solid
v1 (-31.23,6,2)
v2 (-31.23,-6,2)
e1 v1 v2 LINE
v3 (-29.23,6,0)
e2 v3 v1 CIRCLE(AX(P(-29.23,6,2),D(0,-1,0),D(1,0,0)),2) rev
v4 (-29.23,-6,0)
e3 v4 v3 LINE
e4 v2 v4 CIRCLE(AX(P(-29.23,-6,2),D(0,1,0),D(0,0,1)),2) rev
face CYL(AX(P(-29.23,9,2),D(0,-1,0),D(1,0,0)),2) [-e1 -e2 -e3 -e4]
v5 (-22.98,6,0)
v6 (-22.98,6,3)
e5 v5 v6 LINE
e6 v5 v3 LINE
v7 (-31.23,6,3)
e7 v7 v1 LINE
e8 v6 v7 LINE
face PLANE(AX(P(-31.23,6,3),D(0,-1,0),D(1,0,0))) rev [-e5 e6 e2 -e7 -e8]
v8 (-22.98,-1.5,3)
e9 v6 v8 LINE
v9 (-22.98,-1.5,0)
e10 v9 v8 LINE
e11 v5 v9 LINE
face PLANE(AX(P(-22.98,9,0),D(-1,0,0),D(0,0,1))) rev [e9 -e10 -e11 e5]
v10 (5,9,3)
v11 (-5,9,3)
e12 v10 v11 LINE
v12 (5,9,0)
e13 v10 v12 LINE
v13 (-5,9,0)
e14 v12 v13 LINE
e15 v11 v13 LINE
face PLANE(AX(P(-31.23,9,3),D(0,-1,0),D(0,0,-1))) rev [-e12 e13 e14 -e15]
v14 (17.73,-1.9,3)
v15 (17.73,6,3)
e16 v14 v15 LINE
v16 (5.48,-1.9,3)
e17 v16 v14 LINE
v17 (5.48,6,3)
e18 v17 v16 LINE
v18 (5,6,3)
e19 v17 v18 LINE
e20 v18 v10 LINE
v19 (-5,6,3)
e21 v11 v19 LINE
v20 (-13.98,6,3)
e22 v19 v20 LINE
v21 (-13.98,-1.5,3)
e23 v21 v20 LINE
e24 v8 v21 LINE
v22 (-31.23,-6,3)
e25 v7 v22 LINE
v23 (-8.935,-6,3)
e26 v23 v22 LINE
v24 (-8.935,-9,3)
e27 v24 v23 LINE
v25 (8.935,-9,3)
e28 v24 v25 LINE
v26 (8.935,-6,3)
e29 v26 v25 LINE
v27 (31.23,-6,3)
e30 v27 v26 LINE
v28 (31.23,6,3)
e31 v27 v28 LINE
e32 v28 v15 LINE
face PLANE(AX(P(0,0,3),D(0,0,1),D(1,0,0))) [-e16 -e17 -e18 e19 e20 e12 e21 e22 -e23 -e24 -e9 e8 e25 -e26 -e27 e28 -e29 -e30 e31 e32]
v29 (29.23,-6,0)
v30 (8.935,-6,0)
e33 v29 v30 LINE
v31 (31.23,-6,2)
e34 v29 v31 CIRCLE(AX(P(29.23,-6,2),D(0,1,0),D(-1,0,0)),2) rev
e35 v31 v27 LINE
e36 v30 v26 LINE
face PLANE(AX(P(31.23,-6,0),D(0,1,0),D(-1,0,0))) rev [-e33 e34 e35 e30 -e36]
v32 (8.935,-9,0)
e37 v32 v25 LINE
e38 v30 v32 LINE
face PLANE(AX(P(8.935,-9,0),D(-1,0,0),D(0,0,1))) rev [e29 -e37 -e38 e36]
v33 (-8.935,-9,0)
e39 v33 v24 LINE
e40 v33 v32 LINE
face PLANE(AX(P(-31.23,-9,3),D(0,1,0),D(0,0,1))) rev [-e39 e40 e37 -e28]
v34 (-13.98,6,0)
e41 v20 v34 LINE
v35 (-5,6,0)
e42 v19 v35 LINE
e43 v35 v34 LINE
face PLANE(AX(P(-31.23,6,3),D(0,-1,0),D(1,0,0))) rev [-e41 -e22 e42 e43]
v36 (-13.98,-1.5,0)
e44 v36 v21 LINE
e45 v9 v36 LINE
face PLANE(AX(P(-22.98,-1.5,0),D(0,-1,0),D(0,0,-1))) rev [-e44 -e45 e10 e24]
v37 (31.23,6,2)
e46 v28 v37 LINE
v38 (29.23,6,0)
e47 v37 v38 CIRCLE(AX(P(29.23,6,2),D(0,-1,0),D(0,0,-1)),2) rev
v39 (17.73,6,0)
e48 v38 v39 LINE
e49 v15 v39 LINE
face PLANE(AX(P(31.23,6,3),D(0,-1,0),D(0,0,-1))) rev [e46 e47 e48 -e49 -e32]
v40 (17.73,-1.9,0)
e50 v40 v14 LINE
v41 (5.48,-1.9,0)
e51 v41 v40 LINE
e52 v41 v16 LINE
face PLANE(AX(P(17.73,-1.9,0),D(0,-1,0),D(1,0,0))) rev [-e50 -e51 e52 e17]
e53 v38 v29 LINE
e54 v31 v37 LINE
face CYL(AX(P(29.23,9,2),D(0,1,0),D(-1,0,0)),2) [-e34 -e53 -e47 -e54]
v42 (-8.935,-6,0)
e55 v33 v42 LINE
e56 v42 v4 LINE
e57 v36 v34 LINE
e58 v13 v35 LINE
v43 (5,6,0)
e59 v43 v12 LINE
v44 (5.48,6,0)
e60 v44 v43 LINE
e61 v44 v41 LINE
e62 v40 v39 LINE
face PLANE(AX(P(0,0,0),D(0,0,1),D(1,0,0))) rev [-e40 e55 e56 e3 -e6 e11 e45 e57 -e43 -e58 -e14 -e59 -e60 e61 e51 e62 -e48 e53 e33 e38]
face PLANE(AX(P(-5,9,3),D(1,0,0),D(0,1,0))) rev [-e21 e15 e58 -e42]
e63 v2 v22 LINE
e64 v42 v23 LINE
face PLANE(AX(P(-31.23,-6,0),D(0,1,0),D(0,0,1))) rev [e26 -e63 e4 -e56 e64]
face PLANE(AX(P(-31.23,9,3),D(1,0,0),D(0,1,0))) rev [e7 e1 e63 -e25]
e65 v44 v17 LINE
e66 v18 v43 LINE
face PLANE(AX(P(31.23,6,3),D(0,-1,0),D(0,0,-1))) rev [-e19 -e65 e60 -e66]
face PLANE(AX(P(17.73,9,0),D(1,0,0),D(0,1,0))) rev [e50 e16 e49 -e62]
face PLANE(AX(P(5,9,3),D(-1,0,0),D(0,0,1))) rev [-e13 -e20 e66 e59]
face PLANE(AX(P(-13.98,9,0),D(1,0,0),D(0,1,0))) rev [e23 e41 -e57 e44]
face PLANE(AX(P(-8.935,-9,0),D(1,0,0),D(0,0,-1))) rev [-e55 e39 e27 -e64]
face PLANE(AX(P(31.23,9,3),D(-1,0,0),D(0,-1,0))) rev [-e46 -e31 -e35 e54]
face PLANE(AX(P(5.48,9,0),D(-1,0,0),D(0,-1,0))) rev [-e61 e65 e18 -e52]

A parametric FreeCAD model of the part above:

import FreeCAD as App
import Part
import Sketcher

V = App.Vector
Q = App.Units.Quantity


def edges_at(feature, points):
    """Names of the edges that pass closest to the given points."""
    edges = feature.Shape.Edges
    near = lambda p: min(range(len(edges)), key=lambda i: edges[i].distToShape(Part.Vertex(*p))[0])
    return sorted({f"Edge{near(p) + 1}" for p in points})


def add_polygon(sketch, points):
    """Adds a closed chain of lines whose ends are joined by coincident constraints."""
    first, n = sketch.GeometryCount, len(points)
    for a, b in zip(points, points[1:] + points[:1]):
        sketch.addGeometry(Part.LineSegment(App.Vector(*a, 0), App.Vector(*b, 0)), False)
    for i in range(n):
        sketch.addConstraint(Sketcher.Constraint("Coincident", first + i, 2, first + (i + 1) % n, 1))

doc = App.newDocument("Part")
body = doc.addObject("PartDesign::Body", "Body")

# Sketch on XY plane
sketch1 = body.newObject("Sketcher::SketchObject", "Sketch")
sketch1.AttachmentSupport = (doc.getObject("XY_Plane"), [""])
sketch1.MapMode = "FlatFace"
add_polygon(sketch1, [(-31, 9), (-31, -9), (31, -9), (31, 9)])  # lines 0-3
sketch1.addConstraint([
    Sketcher.Constraint("Vertical", 0),
    Sketcher.Constraint("Horizontal", 1),
    Sketcher.Constraint("Vertical", 2),
    Sketcher.Constraint("Horizontal", 3),
    Sketcher.Constraint("Symmetric", 0, 2, 2, 2, -1, 1),
    Sketcher.Constraint("DistanceY", 0, 2, 0, 1, Q("18 mm")),
    Sketcher.Constraint("DistanceX", 1, 1, 1, 2, Q("62.46 mm")),
])
pad1 = body.newObject("PartDesign::Pad", "Pad")
pad1.Profile = sketch1
pad1.Length = 3

# Sketch on XY plane
sketch2 = body.newObject("Sketcher::SketchObject", "Sketch001")
sketch2.AttachmentSupport = (doc.getObject("XY_Plane"), [""])
sketch2.MapMode = "FlatFace"
sketch2.AttachmentOffset = App.Placement(V(0, 0, 3), App.Rotation())
add_polygon(sketch2, [(8.9, -6), (8.9, -9), (31.2, -9), (31.2, -6)])  # lines 0-3
add_polygon(sketch2, [(-31.2, -6), (-31.2, -9), (-8.9, -9), (-8.9, -6)])  # lines 4-7
sketch2.addConstraint([
    Sketcher.Constraint("Vertical", 0),
    Sketcher.Constraint("Horizontal", 1),
    Sketcher.Constraint("Vertical", 2),
    Sketcher.Constraint("Horizontal", 3),
    Sketcher.Constraint("Vertical", 4),
    Sketcher.Constraint("Horizontal", 5),
    Sketcher.Constraint("Vertical", 6),
    Sketcher.Constraint("Horizontal", 7),
    Sketcher.Constraint("Symmetric", 1, 2, 4, 2, -2),
    Sketcher.Constraint("Symmetric", 3, 2, 6, 2, -2),
    Sketcher.Constraint("DistanceY", 0, 2, 0, 1, Q("3 mm")),
    Sketcher.Constraint("DistanceY", 0, 2, -1, 1, Q("9 mm")),
    Sketcher.Constraint("DistanceX", 1, 1, 1, 2, Q("22.295 mm")),
    Sketcher.Constraint("DistanceX", -1, 1, 1, 2, Q("31.23 mm")),
])
pocket1 = body.newObject("PartDesign::Pocket", "Pocket")
pocket1.Profile = sketch2
pocket1.Length = 3

# Sketch on XY plane
sketch3 = body.newObject("Sketcher::SketchObject", "Sketch002")
sketch3.AttachmentSupport = (doc.getObject("XY_Plane"), [""])
sketch3.MapMode = "FlatFace"
sketch3.AttachmentOffset = App.Placement(V(0, 0, 3), App.Rotation())
add_polygon(sketch3, [(5, 9), (5, -2), (18, -2), (18, 9)])  # lines 0-3
add_polygon(sketch3, [(-23, 9), (-23, -2), (-14, -2), (-14, 9)])  # lines 4-7
sketch3.addConstraint([
    Sketcher.Constraint("Vertical", 0),
    Sketcher.Constraint("Horizontal", 1),
    Sketcher.Constraint("Vertical", 2),
    Sketcher.Constraint("Horizontal", 3),
    Sketcher.Constraint("Vertical", 4),
    Sketcher.Constraint("Horizontal", 5),
    Sketcher.Constraint("Vertical", 6),
    Sketcher.Constraint("Horizontal", 7),
    Sketcher.Constraint("Horizontal", 3, 2, 6, 2),
    Sketcher.Constraint("DistanceX", 5, 1, 5, 2, Q("9 mm")),
    Sketcher.Constraint("DistanceY", 0, 2, 0, 1, Q("10.9 mm")),
    Sketcher.Constraint("DistanceY", 4, 2, 4, 1, Q("10.5 mm")),
    Sketcher.Constraint("DistanceY", -1, 1, 2, 2, Q("9 mm")),
    Sketcher.Constraint("DistanceX", 1, 1, 1, 2, Q("12.25 mm")),
    Sketcher.Constraint("DistanceX", -1, 1, 0, 2, Q("5.48 mm")),
    Sketcher.Constraint("DistanceX", 4, 2, -1, 1, Q("22.98 mm")),
])
pocket2 = body.newObject("PartDesign::Pocket", "Pocket001")
pocket2.Profile = sketch3
pocket2.Length = 3

# Sketch on XY plane
sketch4 = body.newObject("Sketcher::SketchObject", "Sketch003")
sketch4.AttachmentSupport = (doc.getObject("XY_Plane"), [""])
sketch4.MapMode = "FlatFace"
add_polygon(sketch4, [(-5, 9), (-5, 6), (-31.2, 6), (-31.2, 9)])  # lines 0-3
add_polygon(sketch4, [(31.2, 9), (31.2, 6), (5, 6), (5, 9)])  # lines 4-7
sketch4.addConstraint([
    Sketcher.Constraint("Vertical", 0),
    Sketcher.Constraint("Horizontal", 1),
    Sketcher.Constraint("Vertical", 2),
    Sketcher.Constraint("Horizontal", 3),
    Sketcher.Constraint("Vertical", 4),
    Sketcher.Constraint("Horizontal", 5),
    Sketcher.Constraint("Vertical", 6),
    Sketcher.Constraint("Horizontal", 7),
    Sketcher.Constraint("Symmetric", 1, 2, 4, 2, -2),
    Sketcher.Constraint("Symmetric", 3, 2, 6, 2, -2),
    Sketcher.Constraint("DistanceY", 0, 2, 0, 1, Q("3 mm")),
    Sketcher.Constraint("DistanceX", 0, 2, -1, 1, Q("5 mm")),
    Sketcher.Constraint("DistanceY", -1, 1, 0, 2, Q("6 mm")),
    Sketcher.Constraint("DistanceX", 1, 2, 1, 1, Q("26.23 mm")),
])
pocket3 = body.newObject("PartDesign::Pocket", "Pocket002")
pocket3.Profile = sketch4
pocket3.Length = 3
pocket3.Reversed = True
doc.recompute()

fillet = body.newObject("PartDesign::Fillet", "Fillet")
fillet.Base = (pocket3, edges_at(pocket3, [(-31.23, 0, 0)]))
fillet.Radius = 2
doc.recompute()

fillet2 = body.newObject("PartDesign::Fillet", "Fillet001")
fillet2.Base = (fillet, edges_at(fillet, [(31.23, 0, 0)]))
fillet2.Radius = 2

doc.recompute()
